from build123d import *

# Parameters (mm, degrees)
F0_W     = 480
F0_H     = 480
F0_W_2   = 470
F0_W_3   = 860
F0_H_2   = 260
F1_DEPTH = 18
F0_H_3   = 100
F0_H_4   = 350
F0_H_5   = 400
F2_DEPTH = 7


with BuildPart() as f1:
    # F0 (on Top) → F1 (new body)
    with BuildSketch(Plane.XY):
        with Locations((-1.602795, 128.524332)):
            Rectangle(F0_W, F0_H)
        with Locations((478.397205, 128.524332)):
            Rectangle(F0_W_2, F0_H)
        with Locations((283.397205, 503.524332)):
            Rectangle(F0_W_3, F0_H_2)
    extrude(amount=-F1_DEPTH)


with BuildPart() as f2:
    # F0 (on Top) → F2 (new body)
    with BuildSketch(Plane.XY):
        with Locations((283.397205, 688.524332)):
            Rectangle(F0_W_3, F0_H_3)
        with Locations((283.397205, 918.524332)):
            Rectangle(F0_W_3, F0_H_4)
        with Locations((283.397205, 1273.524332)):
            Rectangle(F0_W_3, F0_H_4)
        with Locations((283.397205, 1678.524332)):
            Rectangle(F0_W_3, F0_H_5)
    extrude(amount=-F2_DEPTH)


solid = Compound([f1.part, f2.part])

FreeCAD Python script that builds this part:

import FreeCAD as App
import Part
import Sketcher

V = App.Vector
Q = App.Units.Quantity


def add_polygon(sketch, points):
    """Adds a closed chain of lines whose ends are joined by coincident constraints."""
    first, n = sketch.GeometryCount, len(points)
    for a, b in zip(points, points[1:] + points[:1]):
        sketch.addGeometry(Part.LineSegment(App.Vector(*a, 0), App.Vector(*b, 0)), False)
    for i in range(n):
        sketch.addConstraint(Sketcher.Constraint("Coincident", first + i, 2, first + (i + 1) % n, 1))

doc = App.newDocument("Part")
body = doc.addObject("PartDesign::Body", "Body")
body.AllowCompound = True

# Sketch on XY plane
sketch1 = body.newObject("Sketcher::SketchObject", "Sketch")
sketch1.AttachmentSupport = (doc.getObject("XY_Plane"), [""])
sketch1.MapMode = "FlatFace"
add_polygon(sketch1, [(-242, 369), (-242, -111), (238, -111), (238, 369)])  # lines 0-3
add_polygon(sketch1, [(243, 369), (243, -111), (713, -111), (713, 369)])  # lines 4-7
add_polygon(sketch1, [(-147, 634), (-147, 374), (713, 374), (713, 634)])  # lines 8-11
sketch1.addConstraint([
    Sketcher.Constraint("Vertical", 0),
    Sketcher.Constraint("Horizontal", 1),
    Sketcher.Constraint("Vertical", 2),
    Sketcher.Constraint("Horizontal", 3),
    Sketcher.Constraint("Vertical", 4),
    Sketcher.Constraint("Horizontal", 5),
    Sketcher.Constraint("Vertical", 6),
    Sketcher.Constraint("Horizontal", 7),
    Sketcher.Constraint("Vertical", 8),
    Sketcher.Constraint("Horizontal", 9),
    Sketcher.Constraint("Vertical", 10),
    Sketcher.Constraint("Horizontal", 11),
    Sketcher.Constraint("Horizontal", 1, 2, 4, 2),
    Sketcher.Constraint("Horizontal", 3, 2, 6, 2),
    Sketcher.Constraint("Vertical", 6, 2, 9, 2),
    Sketcher.Constraint("Equal", 3, 0),
    Sketcher.Constraint("DistanceX", 1, 1, 1, 2, Q("480 mm")),
    Sketcher.Constraint("DistanceX", 5, 1, 5, 2, Q("470 mm")),
    Sketcher.Constraint("DistanceX", 9, 1, 9, 2, Q("860 mm")),
    Sketcher.Constraint("DistanceY", 8, 2, 8, 1, Q("260 mm")),
    Sketcher.Constraint("DistanceX", 1, 2, 4, 2, Q("5 mm")),
    Sketcher.Constraint("DistanceY", 3, 2, 8, 2, Q("5 mm")),
    Sketcher.Constraint("DistanceY", 0, 2, -1, 1, Q("111.475668 mm")),
    Sketcher.Constraint("DistanceX", 0, 2, -1, 1, Q("241.602795 mm")),
])
pad1 = body.newObject("PartDesign::Pad", "Pad")
pad1.Profile = sketch1
pad1.Length = 18
pad1.Reversed = True
body2 = doc.addObject("PartDesign::Body", "Body001")
body2.AllowCompound = True

# Sketch on XY plane
sketch2 = body2.newObject("Sketcher::SketchObject", "Sketch001")
sketch2.AttachmentSupport = (doc.getObject("XY_Plane001"), [""])
sketch2.MapMode = "FlatFace"
add_polygon(sketch2, [(-147, 739), (-147, 639), (713, 639), (713, 739)])  # lines 0-3
add_polygon(sketch2, [(-147, 1094), (-147, 744), (713, 744), (713, 1094)])  # lines 4-7
add_polygon(sketch2, [(-147, 1449), (-147, 1099), (713, 1099), (713, 1449)])  # lines 8-11
add_polygon(sketch2, [(-147, 1879), (-147, 1479), (713, 1479), (713, 1879)])  # lines 12-15
sketch2.addConstraint([
    Sketcher.Constraint("Vertical", 0),
    Sketcher.Constraint("Horizontal", 1),
    Sketcher.Constraint("Vertical", 2),
    Sketcher.Constraint("Horizontal", 3),
    Sketcher.Constraint("Vertical", 4),
    Sketcher.Constraint("Horizontal", 5),
    Sketcher.Constraint("Vertical", 6),
    Sketcher.Constraint("Horizontal", 7),
    Sketcher.Constraint("Vertical", 8),
    Sketcher.Constraint("Horizontal", 9),
    Sketcher.Constraint("Vertical", 10),
    Sketcher.Constraint("Horizontal", 11),
    Sketcher.Constraint("Vertical", 12),
    Sketcher.Constraint("Horizontal", 13),
    Sketcher.Constraint("Vertical", 14),
    Sketcher.Constraint("Horizontal", 15),
    Sketcher.Constraint("Vertical", 3, 2, 4, 2),
    Sketcher.Constraint("Vertical", 2, 2, 5, 2),
    Sketcher.Constraint("Vertical", 7, 2, 8, 2),
    Sketcher.Constraint("Vertical", 6, 2, 9, 2),
    Sketcher.Constraint("Vertical", 11, 2, 12, 2),
    Sketcher.Constraint("Vertical", 10, 2, 13, 2),
    Sketcher.Constraint("Equal", 6, 8),
    Sketcher.Constraint("DistanceX", 1, 1, 1, 2, Q("860 mm")),
    Sketcher.Constraint("DistanceY", 0, 2, 0, 1, Q("100 mm")),
    Sketcher.Constraint("DistanceY", 4, 2, 4, 1, Q("350 mm")),
    Sketcher.Constraint("DistanceY", 12, 2, 12, 1, Q("400 mm")),
    Sketcher.Constraint("DistanceY", 3, 2, 4, 2, Q("5 mm")),
    Sketcher.Constraint("DistanceY", 7, 2, 8, 2, Q("5 mm")),
    Sketcher.Constraint("DistanceY", 11, 2, 12, 2, Q("30 mm")),
    Sketcher.Constraint("DistanceY", -1, 1, 0, 2, Q("638.524332 mm")),
    Sketcher.Constraint("DistanceX", 0, 2, -1, 1, Q("146.602795 mm")),
])
pad2 = body2.newObject("PartDesign::Pad", "Pad001")
pad2.Profile = sketch2
pad2.Length = 7
pad2.Reversed = True

doc.recompute()
